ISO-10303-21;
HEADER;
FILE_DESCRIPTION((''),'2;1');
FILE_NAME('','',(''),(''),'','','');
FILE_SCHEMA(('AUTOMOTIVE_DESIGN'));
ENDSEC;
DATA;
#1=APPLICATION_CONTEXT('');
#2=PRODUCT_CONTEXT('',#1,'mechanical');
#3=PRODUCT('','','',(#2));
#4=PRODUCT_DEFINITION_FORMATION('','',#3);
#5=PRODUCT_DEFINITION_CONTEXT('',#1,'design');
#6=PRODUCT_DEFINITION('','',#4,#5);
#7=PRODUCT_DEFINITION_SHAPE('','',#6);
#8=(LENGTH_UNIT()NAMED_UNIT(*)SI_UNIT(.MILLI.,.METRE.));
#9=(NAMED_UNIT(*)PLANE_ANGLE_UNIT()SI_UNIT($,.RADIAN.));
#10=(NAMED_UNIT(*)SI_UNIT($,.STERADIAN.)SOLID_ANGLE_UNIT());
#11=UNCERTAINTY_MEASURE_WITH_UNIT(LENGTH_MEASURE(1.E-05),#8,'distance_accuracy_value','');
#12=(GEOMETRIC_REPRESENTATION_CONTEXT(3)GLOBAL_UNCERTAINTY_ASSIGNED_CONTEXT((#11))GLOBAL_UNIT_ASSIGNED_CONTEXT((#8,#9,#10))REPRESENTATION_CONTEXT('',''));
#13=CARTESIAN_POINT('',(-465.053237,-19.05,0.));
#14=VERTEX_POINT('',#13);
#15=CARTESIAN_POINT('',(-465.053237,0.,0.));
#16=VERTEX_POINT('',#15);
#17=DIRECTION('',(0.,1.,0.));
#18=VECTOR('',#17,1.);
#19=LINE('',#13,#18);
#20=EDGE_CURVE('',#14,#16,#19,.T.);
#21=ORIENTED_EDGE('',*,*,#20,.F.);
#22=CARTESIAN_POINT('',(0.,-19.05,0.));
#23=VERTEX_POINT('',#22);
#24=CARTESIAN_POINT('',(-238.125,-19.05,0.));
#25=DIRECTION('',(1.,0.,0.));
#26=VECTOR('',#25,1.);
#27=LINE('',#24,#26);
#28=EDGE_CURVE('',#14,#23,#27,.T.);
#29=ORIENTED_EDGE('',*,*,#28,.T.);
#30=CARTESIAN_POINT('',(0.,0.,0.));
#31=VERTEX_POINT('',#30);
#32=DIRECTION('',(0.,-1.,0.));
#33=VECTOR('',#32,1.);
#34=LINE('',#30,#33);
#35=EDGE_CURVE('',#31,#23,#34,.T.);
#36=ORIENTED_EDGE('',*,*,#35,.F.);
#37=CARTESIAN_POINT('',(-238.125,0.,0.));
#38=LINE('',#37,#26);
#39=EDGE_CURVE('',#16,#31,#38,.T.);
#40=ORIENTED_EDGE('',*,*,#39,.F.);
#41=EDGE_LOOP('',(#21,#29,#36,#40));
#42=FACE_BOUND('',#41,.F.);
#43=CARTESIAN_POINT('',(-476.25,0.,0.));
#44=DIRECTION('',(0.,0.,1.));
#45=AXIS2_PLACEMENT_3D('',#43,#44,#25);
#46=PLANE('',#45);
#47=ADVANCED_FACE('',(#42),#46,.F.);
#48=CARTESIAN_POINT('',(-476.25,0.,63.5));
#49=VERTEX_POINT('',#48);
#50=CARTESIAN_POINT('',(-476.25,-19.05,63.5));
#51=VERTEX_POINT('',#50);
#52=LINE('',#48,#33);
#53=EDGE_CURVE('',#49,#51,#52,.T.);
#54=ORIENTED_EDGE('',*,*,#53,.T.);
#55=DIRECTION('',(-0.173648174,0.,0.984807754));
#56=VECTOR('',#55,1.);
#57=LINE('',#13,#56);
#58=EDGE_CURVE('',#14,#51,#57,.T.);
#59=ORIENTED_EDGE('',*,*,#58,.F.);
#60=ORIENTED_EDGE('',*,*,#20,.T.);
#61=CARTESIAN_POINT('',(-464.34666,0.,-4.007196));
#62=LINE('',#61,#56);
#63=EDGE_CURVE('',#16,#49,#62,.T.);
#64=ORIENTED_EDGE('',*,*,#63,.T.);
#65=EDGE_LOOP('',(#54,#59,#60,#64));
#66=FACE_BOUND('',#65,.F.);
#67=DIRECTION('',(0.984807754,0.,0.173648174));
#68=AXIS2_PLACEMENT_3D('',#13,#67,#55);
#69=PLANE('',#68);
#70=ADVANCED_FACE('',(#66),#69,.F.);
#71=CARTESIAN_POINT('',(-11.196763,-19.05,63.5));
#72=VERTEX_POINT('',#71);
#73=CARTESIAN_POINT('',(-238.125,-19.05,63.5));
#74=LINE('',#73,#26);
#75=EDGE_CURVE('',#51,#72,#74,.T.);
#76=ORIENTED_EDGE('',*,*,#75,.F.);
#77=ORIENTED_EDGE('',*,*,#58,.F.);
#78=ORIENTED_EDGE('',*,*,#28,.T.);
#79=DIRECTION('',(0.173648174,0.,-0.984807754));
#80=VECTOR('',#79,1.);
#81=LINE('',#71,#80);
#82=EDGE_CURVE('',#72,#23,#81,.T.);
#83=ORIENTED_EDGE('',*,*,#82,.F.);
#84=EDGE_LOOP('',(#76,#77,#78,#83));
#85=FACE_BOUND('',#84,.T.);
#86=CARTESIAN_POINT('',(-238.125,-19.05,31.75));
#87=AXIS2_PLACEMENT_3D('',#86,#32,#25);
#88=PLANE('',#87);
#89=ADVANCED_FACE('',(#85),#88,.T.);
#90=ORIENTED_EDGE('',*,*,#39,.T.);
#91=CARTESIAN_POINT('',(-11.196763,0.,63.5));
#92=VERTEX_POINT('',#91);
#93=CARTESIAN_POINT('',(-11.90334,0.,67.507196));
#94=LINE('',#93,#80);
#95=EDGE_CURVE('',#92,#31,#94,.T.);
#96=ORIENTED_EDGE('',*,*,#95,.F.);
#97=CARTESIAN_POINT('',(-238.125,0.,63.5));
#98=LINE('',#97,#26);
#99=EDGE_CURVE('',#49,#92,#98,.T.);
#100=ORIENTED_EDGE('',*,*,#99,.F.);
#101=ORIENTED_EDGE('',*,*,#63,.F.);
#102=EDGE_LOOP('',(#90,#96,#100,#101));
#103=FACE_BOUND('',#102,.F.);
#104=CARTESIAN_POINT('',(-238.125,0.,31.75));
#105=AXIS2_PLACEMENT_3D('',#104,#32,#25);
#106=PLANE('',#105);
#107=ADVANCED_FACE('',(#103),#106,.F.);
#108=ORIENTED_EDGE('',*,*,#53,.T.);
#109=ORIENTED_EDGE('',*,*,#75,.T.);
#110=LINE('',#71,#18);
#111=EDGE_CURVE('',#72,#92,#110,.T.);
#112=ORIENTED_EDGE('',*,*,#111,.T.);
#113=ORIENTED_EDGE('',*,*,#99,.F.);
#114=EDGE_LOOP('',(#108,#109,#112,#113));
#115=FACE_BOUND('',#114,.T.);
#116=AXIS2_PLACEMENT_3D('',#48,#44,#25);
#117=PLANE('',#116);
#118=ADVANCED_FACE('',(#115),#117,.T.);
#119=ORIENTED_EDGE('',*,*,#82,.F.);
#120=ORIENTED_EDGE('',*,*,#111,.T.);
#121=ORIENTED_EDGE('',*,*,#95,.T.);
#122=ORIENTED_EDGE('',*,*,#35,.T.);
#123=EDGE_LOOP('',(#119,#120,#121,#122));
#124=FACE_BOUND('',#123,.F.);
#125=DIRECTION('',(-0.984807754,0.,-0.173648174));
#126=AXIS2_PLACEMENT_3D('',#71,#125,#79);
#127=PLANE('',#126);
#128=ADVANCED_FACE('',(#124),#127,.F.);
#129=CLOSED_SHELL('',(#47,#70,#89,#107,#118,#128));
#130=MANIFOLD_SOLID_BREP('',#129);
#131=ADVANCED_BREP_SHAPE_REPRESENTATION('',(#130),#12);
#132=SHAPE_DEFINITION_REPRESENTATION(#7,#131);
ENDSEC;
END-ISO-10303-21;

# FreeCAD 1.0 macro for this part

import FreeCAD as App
import Part
import Sketcher

V = App.Vector
Q = App.Units.Quantity

doc = App.newDocument("Part")
body = doc.addObject("PartDesign::Body", "Body")

# Sketch on XZ plane
sketch1 = body.newObject("Sketcher::SketchObject", "Sketch")
sketch1.AttachmentSupport = (doc.getObject("XZ_Plane"), [""])
sketch1.MapMode = "FlatFace"
sketch1.addGeometry([
    Part.LineSegment(V(-476, 64, 0), V(-476, 0, 0)),
    Part.LineSegment(V(-476, 0, 0), V(0, 0, 0)),
    Part.LineSegment(V(0, 0, 0), V(0, 64, 0)),
    Part.LineSegment(V(0, 64, 0), V(-476, 64, 0)),
], False)
sketch1.addConstraint([
    Sketcher.Constraint("Coincident", 0, 2, 1, 1),
    Sketcher.Constraint("Coincident", 1, 2, 2, 1),
    Sketcher.Constraint("Coincident", 2, 2, 3, 1),
    Sketcher.Constraint("Coincident", 3, 2, 0, 1),
    Sketcher.Constraint("Vertical", 0),
    Sketcher.Constraint("Horizontal", 1),
    Sketcher.Constraint("Vertical", 2),
    Sketcher.Constraint("Horizontal", 3),
    Sketcher.Constraint("Coincident", 1, 2, -1, 1),
    Sketcher.Constraint("DistanceY", 0, 2, 0, 1, Q("2.5 in")),
    Sketcher.Constraint("DistanceX", 1, 1, 1, 2, Q("18.75 in")),
])
pad1 = body.newObject("PartDesign::Pad", "Pad")
pad1.Profile = sketch1
pad1.Length = Q("0.75 in")

# Sketch on XZ plane
sketch2 = body.newObject("Sketcher::SketchObject", "Sketch001")
sketch2.AttachmentSupport = (doc.getObject("XZ_Plane"), [""])
sketch2.MapMode = "FlatFace"
sketch2.AttachmentOffset = App.Placement(V(0, 0, 0.75 * 25.4), App.Rotation())
sketch2.addGeometry([
    Part.LineSegment(V(-465, 0, 0), V(-476, 64, 0)),
    Part.LineSegment(V(-476, 64, 0), V(-476, 0, 0)),
    Part.LineSegment(V(-476, 0, 0), V(-465, 0, 0)),
], False)
sketch2.addConstraint([
    Sketcher.Constraint("Coincident", 0, 2, 1, 1),
    Sketcher.Constraint("Coincident", 1, 2, 2, 1),
    Sketcher.Constraint("Coincident", 2, 2, 0, 1),
    Sketcher.Constraint("Vertical", 1),
    Sketcher.Constraint("Horizontal", 2),
    Sketcher.Constraint("PointOnObject", 1, 2, -1),
    Sketcher.Constraint("DistanceY", 1, 2, 1, 1, Q("2.5 in")),
    Sketcher.Constraint("Angle", 0, Q("100 deg")),
    Sketcher.Constraint("DistanceX", 0, 2, -1, 1, Q("18.75 in")),
])
pocket1 = body.newObject("PartDesign::Pocket", "Pocket")
pocket1.Profile = sketch2
pocket1.Length = Q("1 in")

# Sketch on XZ plane
sketch3 = body.newObject("Sketcher::SketchObject", "Sketch002")
sketch3.AttachmentSupport = (doc.getObject("XZ_Plane"), [""])
sketch3.MapMode = "FlatFace"
sketch3.AttachmentOffset = App.Placement(V(0, 0, 0.75 * 25.4), App.Rotation())
sketch3.addGeometry([
    Part.LineSegment(V(-11, 64, 0), V(0, 0, 0)),
    Part.LineSegment(V(0, 0, 0), V(0, 64, 0)),
    Part.LineSegment(V(0, 64, 0), V(-11, 64, 0)),
], False)
sketch3.addConstraint([
    Sketcher.Constraint("Coincident", 0, 2, 1, 1),
    Sketcher.Constraint("Coincident", 1, 2, 2, 1),
    Sketcher.Constraint("Coincident", 2, 2, 0, 1),
    Sketcher.Constraint("Vertical", 1),
    Sketcher.Constraint("Horizontal", 2),
    Sketcher.Constraint("Coincident", 0, 2, -1, 1),
    Sketcher.Constraint("DistanceY", 1, 1, 1, 2, Q("2.5 in")),
    Sketcher.Constraint("Angle", 0, Q("-80 deg")),
])
pocket2 = body.newObject("PartDesign::Pocket", "Pocket001")
pocket2.Profile = sketch3
pocket2.Length = Q("1 in")

doc.recompute()
